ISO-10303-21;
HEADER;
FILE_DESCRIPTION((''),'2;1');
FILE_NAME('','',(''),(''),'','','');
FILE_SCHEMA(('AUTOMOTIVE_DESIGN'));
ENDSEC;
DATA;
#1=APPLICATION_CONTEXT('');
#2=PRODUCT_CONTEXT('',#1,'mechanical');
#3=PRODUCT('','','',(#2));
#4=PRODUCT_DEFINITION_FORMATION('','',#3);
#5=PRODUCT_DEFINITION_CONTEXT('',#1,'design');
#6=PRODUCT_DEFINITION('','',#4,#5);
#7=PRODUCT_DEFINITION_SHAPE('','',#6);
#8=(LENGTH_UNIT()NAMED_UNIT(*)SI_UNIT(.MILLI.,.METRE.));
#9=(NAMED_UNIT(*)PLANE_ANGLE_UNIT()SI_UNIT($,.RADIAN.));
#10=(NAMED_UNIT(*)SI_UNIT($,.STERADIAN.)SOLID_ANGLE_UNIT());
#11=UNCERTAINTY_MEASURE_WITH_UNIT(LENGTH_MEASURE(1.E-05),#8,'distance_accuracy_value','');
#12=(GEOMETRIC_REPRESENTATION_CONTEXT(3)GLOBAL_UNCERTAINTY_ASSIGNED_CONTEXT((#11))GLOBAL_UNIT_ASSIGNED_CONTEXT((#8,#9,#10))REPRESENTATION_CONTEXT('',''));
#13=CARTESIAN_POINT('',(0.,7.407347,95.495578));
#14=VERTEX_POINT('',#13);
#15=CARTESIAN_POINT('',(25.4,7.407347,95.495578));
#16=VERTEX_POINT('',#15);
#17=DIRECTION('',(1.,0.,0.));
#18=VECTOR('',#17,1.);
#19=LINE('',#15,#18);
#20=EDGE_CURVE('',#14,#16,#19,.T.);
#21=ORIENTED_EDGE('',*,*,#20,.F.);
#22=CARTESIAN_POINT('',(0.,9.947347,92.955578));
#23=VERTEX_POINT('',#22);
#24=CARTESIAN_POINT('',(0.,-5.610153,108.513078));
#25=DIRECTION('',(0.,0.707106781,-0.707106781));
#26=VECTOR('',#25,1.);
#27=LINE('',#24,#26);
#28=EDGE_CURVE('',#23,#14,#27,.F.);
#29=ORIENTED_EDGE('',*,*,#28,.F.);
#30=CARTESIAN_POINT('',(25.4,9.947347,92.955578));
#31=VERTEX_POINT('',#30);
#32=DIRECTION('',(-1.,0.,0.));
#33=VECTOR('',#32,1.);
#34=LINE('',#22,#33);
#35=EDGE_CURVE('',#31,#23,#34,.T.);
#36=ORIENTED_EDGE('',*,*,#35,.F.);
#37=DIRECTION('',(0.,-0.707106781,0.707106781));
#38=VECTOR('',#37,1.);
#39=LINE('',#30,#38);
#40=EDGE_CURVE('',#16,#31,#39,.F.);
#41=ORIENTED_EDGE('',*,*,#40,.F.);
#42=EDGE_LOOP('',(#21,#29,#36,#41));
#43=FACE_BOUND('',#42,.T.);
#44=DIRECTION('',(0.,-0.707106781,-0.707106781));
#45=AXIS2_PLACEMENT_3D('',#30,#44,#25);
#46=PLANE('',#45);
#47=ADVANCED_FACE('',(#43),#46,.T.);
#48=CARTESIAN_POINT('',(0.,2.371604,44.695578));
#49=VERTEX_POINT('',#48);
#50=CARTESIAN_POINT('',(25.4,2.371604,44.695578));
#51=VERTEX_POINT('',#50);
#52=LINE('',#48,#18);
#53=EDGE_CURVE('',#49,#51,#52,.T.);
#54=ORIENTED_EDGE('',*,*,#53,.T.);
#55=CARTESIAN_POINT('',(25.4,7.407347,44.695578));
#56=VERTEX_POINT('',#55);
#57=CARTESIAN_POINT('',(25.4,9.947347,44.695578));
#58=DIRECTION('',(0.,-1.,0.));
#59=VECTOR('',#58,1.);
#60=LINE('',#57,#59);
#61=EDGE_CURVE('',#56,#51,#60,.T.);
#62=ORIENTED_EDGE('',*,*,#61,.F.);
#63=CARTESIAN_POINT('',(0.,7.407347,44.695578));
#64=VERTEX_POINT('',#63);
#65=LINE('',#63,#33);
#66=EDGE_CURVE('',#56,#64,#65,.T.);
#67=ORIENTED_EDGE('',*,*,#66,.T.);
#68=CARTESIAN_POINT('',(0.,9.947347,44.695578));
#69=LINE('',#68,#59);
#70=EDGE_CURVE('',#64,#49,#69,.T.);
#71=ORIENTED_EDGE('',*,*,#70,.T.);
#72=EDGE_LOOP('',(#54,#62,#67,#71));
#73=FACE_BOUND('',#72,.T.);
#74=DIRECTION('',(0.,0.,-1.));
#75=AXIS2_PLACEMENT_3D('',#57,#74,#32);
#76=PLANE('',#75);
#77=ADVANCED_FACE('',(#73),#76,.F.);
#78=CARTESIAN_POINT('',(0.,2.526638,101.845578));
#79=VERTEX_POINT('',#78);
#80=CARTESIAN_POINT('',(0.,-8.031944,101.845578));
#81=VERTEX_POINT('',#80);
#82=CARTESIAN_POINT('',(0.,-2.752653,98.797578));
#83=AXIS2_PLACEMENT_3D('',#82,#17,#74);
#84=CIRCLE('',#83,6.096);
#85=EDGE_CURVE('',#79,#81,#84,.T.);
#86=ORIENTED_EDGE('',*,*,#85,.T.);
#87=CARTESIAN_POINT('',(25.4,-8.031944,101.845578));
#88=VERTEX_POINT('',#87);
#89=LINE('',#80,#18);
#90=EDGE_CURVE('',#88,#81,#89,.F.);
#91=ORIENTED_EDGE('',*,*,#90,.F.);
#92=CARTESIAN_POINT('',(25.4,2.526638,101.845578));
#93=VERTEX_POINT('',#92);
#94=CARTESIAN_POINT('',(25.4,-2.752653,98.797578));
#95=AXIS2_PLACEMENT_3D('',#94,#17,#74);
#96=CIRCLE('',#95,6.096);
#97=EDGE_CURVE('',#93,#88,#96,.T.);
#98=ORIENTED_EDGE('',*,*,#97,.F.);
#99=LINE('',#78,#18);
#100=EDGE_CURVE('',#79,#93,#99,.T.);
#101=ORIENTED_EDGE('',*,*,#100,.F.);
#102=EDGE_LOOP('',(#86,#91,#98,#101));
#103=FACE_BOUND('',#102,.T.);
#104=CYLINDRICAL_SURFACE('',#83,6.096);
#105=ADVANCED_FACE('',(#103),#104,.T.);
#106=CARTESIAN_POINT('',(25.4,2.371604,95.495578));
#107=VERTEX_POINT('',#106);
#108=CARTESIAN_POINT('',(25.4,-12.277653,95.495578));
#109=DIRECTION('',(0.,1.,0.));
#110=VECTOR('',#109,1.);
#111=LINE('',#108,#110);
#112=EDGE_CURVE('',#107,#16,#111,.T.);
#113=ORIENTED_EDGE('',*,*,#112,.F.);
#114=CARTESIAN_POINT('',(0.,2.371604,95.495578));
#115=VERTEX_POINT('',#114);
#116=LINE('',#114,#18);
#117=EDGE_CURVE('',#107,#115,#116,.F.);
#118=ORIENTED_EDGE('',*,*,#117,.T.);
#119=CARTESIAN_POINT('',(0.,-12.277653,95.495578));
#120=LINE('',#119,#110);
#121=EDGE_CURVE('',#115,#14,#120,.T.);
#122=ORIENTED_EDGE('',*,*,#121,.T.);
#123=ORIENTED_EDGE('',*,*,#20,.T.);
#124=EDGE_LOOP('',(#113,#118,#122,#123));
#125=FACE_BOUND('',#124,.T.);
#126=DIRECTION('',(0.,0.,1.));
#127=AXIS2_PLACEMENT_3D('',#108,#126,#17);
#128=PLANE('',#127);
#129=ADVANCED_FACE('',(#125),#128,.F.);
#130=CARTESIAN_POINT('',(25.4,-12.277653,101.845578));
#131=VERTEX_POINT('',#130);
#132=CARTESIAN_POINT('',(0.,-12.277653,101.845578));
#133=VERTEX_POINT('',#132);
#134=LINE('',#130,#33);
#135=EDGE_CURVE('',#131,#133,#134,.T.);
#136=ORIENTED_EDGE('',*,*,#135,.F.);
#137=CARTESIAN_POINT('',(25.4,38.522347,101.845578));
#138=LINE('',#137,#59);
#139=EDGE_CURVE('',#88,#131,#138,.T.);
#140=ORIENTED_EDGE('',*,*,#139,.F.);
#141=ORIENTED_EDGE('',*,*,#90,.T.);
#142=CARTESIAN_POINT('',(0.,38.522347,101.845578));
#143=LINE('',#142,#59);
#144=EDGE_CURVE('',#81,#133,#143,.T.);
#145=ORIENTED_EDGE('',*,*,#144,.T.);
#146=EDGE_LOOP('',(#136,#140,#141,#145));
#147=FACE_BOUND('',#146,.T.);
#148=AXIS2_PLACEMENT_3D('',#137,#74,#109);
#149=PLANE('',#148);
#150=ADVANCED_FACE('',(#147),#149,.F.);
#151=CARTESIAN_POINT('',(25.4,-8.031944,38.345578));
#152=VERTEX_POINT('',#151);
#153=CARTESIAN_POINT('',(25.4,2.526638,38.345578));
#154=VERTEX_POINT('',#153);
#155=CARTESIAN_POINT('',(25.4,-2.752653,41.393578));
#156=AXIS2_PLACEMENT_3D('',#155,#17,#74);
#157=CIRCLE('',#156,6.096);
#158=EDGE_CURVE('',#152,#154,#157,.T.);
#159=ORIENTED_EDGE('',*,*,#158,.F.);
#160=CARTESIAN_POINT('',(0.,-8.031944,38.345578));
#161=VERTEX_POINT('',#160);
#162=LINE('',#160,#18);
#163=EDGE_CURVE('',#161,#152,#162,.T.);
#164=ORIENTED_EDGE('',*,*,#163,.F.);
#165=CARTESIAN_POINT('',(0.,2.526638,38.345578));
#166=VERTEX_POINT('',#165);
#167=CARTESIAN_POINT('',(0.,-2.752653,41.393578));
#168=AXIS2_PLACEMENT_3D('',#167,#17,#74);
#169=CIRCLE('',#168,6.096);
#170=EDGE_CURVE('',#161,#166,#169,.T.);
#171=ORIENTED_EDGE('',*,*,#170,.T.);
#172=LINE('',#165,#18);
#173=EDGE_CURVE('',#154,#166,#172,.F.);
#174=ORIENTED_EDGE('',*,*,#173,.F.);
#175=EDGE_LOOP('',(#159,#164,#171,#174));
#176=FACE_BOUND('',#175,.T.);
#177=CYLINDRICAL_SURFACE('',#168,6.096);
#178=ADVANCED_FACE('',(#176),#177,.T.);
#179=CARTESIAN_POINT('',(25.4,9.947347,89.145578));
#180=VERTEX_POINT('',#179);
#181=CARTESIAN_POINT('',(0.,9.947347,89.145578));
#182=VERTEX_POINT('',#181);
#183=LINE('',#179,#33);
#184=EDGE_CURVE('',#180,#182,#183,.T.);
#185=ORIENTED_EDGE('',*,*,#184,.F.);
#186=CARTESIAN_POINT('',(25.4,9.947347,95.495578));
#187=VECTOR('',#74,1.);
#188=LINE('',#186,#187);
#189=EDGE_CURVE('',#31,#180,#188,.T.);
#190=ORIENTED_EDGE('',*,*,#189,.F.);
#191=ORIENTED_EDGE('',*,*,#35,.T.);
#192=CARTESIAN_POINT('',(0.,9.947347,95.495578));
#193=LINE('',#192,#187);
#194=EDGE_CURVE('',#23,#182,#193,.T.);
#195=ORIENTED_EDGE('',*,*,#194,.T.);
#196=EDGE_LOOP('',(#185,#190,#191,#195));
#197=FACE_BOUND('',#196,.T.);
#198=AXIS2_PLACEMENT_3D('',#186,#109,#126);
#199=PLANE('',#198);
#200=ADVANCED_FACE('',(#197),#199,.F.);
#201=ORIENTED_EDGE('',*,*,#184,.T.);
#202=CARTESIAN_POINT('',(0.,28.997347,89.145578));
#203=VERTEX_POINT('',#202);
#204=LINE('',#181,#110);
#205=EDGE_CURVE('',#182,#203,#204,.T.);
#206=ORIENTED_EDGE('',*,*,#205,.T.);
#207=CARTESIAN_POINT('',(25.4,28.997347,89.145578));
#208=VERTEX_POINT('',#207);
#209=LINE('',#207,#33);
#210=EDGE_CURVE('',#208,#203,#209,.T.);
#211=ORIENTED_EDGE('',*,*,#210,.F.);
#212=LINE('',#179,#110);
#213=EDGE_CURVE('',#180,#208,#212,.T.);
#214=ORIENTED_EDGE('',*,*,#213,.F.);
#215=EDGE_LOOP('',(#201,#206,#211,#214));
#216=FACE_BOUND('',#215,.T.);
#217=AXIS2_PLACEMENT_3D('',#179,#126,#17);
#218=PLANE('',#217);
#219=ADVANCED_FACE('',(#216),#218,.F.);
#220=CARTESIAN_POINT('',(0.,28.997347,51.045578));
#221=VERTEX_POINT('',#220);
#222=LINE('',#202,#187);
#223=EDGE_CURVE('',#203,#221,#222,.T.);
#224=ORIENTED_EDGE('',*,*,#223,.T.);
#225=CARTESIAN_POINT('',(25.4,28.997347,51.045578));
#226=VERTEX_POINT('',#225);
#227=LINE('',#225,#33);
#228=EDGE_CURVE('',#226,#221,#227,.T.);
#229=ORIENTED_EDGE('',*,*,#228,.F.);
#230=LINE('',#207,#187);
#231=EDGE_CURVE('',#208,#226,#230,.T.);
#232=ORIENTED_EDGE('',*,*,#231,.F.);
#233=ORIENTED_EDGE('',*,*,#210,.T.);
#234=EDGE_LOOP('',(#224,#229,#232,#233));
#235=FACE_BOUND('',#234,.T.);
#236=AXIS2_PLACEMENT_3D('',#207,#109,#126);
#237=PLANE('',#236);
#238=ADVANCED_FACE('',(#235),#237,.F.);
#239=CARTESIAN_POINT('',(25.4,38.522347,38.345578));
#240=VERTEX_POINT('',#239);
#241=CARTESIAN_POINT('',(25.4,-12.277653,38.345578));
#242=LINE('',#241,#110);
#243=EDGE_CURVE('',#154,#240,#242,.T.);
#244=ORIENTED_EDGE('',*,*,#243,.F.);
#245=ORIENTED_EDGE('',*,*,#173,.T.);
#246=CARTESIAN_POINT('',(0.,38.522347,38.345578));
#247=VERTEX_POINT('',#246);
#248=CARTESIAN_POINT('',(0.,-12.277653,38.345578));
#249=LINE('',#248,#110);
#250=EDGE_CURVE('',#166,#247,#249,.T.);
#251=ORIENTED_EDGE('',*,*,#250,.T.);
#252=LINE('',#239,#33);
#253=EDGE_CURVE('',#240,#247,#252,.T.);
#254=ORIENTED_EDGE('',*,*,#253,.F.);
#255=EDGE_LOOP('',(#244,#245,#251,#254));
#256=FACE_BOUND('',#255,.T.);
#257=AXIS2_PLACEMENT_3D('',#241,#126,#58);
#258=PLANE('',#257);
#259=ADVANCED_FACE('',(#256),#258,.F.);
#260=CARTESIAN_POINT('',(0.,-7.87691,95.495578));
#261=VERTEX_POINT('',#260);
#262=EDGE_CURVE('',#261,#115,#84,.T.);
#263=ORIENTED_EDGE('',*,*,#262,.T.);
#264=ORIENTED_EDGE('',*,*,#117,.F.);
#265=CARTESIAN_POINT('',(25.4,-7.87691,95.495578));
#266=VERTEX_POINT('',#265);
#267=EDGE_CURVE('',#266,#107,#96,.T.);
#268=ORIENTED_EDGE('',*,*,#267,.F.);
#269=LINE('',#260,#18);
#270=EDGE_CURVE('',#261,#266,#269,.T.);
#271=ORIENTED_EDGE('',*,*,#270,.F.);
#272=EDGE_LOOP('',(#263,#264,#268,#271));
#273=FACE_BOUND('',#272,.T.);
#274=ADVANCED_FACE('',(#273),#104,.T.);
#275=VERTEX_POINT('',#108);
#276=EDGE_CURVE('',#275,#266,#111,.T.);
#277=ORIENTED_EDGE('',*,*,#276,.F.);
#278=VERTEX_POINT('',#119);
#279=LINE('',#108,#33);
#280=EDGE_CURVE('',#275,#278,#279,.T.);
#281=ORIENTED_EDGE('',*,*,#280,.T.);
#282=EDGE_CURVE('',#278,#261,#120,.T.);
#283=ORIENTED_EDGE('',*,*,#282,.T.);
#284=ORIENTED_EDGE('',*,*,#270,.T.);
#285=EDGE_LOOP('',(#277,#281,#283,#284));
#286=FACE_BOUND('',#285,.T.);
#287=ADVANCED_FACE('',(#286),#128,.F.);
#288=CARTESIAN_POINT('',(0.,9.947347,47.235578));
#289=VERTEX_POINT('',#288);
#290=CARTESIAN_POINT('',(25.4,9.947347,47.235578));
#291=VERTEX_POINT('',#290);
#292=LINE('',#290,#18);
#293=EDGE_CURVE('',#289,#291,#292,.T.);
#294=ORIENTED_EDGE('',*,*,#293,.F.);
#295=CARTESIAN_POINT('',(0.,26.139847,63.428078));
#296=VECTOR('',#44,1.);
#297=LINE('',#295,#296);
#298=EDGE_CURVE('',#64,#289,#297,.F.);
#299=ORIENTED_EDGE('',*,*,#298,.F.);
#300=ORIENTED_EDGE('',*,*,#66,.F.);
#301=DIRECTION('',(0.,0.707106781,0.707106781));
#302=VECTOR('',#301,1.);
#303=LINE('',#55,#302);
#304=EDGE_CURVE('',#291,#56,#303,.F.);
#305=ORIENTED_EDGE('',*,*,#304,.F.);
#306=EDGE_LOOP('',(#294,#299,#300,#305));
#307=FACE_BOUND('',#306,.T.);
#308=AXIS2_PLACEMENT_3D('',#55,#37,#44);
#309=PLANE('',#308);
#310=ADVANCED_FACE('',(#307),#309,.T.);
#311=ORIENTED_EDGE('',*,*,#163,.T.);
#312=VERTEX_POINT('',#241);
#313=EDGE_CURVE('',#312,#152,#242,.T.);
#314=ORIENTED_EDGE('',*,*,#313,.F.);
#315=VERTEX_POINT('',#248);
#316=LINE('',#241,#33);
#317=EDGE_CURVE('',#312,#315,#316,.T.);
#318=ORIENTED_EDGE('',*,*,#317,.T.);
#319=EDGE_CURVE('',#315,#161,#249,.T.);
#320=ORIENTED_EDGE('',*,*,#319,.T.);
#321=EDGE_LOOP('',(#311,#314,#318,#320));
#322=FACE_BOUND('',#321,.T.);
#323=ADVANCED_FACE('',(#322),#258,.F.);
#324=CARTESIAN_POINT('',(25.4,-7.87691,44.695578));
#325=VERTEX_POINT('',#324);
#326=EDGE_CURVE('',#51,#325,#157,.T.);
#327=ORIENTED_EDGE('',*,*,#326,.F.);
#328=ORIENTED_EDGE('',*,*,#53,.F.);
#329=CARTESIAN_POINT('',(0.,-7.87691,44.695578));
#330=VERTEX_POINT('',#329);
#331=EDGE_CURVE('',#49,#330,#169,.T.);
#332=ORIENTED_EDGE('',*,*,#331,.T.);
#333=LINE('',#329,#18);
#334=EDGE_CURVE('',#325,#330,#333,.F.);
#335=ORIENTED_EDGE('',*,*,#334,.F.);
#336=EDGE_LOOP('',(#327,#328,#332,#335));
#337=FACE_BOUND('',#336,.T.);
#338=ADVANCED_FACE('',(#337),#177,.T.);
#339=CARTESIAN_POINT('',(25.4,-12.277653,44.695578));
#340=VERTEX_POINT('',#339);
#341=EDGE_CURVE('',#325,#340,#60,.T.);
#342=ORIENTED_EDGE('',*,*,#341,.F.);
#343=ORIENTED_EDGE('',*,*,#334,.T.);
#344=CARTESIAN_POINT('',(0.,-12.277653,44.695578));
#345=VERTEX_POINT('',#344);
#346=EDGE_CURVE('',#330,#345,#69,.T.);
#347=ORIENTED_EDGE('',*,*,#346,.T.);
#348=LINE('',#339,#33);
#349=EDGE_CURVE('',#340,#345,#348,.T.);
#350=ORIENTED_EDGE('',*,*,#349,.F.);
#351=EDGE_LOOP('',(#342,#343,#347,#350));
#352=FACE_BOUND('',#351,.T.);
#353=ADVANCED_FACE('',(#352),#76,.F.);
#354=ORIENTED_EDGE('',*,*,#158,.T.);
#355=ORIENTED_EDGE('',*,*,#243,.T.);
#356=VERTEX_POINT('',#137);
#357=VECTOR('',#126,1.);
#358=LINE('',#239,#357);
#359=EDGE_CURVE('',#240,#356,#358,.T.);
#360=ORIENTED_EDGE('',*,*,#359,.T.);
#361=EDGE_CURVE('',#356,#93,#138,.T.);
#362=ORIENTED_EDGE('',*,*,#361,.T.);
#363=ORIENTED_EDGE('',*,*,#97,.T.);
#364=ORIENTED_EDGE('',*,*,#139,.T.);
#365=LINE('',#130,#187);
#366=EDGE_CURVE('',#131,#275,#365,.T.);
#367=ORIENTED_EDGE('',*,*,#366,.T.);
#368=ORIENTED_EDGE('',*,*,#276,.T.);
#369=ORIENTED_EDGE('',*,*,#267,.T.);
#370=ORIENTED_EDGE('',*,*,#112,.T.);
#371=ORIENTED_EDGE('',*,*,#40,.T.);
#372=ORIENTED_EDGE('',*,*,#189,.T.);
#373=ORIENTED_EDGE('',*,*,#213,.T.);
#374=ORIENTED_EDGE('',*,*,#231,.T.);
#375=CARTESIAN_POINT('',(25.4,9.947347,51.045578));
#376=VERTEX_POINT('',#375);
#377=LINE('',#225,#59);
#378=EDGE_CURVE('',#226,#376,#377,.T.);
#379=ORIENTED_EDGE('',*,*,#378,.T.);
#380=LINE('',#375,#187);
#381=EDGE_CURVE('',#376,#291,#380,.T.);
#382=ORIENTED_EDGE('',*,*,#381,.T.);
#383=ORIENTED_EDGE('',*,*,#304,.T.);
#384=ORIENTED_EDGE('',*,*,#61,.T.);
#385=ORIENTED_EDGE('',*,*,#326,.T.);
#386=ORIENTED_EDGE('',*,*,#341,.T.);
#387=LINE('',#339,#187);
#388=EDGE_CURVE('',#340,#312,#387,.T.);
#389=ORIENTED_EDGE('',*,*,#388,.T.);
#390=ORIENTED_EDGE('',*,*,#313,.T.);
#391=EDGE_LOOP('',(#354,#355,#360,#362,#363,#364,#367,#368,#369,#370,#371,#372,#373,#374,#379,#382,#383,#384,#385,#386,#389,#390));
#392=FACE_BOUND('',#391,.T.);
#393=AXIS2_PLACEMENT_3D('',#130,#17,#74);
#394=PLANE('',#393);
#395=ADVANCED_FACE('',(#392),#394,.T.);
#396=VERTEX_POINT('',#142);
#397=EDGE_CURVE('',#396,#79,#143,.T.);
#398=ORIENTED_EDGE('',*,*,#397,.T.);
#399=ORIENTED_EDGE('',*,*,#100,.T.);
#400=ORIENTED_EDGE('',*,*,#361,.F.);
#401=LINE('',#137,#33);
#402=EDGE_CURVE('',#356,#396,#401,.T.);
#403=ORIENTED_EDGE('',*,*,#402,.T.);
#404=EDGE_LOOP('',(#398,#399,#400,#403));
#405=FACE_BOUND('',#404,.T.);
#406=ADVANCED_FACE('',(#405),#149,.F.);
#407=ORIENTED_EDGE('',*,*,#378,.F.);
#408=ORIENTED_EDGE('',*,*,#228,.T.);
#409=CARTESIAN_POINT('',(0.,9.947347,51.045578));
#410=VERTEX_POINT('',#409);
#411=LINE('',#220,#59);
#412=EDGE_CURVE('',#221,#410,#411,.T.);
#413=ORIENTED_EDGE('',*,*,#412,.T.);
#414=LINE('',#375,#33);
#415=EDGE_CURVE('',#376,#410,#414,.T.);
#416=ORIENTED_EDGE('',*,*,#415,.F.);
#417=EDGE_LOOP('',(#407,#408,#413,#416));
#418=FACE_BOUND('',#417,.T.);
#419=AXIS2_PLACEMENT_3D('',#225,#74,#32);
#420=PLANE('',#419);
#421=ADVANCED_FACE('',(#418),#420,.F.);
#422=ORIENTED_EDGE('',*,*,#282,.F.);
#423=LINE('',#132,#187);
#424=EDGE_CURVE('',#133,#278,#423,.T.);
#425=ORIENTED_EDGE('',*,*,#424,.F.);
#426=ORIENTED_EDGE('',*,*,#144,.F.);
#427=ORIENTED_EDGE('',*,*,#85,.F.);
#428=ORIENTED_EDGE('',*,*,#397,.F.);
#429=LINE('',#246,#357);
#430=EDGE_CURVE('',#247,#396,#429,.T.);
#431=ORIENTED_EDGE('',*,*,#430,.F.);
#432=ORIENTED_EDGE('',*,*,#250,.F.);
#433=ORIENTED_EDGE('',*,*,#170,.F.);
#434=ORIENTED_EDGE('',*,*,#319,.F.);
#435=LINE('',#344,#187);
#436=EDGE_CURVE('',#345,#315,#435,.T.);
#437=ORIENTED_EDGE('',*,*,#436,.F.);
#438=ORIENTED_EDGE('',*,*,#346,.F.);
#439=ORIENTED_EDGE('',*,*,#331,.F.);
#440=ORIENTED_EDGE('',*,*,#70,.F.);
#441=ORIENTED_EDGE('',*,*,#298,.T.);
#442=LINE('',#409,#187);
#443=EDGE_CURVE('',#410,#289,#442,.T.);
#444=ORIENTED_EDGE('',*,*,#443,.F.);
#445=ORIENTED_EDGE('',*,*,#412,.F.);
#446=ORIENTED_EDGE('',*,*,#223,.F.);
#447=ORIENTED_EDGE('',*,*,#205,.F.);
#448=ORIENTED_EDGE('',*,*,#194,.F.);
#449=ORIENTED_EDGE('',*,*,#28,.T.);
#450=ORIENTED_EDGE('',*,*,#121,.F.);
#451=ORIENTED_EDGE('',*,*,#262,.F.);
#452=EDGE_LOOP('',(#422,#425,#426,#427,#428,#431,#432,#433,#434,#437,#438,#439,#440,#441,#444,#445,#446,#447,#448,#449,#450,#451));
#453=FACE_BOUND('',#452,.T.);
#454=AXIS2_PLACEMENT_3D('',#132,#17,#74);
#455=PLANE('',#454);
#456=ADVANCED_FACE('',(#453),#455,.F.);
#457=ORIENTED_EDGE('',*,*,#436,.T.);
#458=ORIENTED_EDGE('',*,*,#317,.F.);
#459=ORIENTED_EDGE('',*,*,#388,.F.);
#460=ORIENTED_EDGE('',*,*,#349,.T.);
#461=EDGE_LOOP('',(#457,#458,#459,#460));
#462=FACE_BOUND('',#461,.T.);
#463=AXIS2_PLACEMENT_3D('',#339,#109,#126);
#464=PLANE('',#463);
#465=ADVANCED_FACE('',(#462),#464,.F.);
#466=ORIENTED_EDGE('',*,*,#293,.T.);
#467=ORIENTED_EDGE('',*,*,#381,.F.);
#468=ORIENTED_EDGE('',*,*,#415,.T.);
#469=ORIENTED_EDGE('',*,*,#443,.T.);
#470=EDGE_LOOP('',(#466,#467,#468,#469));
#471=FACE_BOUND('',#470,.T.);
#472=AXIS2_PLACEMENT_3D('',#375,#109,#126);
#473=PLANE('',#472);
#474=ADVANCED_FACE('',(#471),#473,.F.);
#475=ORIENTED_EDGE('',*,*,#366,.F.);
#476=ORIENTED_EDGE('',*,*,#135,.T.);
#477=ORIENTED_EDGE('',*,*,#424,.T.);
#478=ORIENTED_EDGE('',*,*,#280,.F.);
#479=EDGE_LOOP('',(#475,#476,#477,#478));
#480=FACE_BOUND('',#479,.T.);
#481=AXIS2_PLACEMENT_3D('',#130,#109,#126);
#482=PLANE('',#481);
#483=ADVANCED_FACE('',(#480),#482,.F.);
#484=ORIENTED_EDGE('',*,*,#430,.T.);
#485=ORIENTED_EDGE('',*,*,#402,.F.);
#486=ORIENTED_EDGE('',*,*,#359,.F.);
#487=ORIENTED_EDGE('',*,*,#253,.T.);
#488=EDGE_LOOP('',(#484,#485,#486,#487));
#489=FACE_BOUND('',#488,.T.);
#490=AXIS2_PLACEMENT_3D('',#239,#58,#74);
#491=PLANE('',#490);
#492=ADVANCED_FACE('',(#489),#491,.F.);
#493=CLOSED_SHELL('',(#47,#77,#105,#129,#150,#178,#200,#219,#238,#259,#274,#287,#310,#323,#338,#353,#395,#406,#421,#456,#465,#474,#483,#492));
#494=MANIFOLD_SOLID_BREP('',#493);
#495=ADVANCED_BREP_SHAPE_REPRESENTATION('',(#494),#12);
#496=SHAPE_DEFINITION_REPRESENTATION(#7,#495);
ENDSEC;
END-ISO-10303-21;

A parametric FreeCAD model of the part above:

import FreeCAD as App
import Part
import Sketcher
Q = App.Units.Quantity


def edges_at(feature, points):
    """Names of the edges that pass closest to the given points."""
    edges = feature.Shape.Edges
    near = lambda p: min(range(len(edges)), key=lambda i: edges[i].distToShape(Part.Vertex(*p))[0])
    return sorted({f"Edge{near(p) + 1}" for p in points})


def add_polygon(sketch, points):
    """Adds a closed chain of lines whose ends are joined by coincident constraints."""
    first, n = sketch.GeometryCount, len(points)
    for a, b in zip(points, points[1:] + points[:1]):
        sketch.addGeometry(Part.LineSegment(App.Vector(*a, 0), App.Vector(*b, 0)), False)
    for i in range(n):
        sketch.addConstraint(Sketcher.Constraint("Coincident", first + i, 2, first + (i + 1) % n, 1))

doc = App.newDocument("Part")
body = doc.addObject("PartDesign::Body", "Body")

sketch1 = body.newObject("Sketcher::SketchObject", "Sketch")
sketch1.AttachmentSupport = (doc.getObject("YZ_Plane"), [""])
sketch1.MapMode = "FlatFace"
add_polygon(sketch1, [(-12, 102), (-12, 95), (10, 95), (10, 89), (29, 89), (29, 51), (10, 51), (10, 45), (-12, 45), (-12, 38), (39, 38), (39, 102)])
sketch1.addConstraint([
    Sketcher.Constraint("Vertical", 0),
    Sketcher.Constraint("Horizontal", 1),
    Sketcher.Constraint("Vertical", 2),
    Sketcher.Constraint("Horizontal", 3),
    Sketcher.Constraint("Vertical", 4),
    Sketcher.Constraint("Horizontal", 5),
    Sketcher.Constraint("Vertical", 6),
    Sketcher.Constraint("Horizontal", 7),
    Sketcher.Constraint("Vertical", 8),
    Sketcher.Constraint("Horizontal", 9),
    Sketcher.Constraint("Vertical", 10),
    Sketcher.Constraint("Horizontal", 11),
    Sketcher.Constraint("Vertical", 2, 2, 5, 2),
    Sketcher.Constraint("Vertical", 0, 2, 7, 2),
    Sketcher.Constraint("Equal", 0, 2),
    Sketcher.Constraint("Equal", 2, 6),
    Sketcher.Constraint("Equal", 6, 8),
    Sketcher.Constraint("DistanceX", 9, 1, 9, 2, Q("2 in")),
    Sketcher.Constraint("DistanceY", 4, 2, 4, 1, Q("1.5 in")),
    Sketcher.Constraint("DistanceY", 10, 1, 10, 2, Q("2.5 in")),
    Sketcher.Constraint("DistanceX", 3, 1, 3, 2, Q("0.75 in")),
    Sketcher.Constraint("DistanceX", 1, 1, 1, 2, Q("0.875 in")),
    Sketcher.Constraint("DistanceX", 0, 2, -1, 1, 12.277653),
    Sketcher.Constraint("DistanceY", -1, 1, 0, 2, 95.495578),
])
pad1 = body.newObject("PartDesign::Pad", "Pad")
pad1.Profile = sketch1
pad1.Length = Q("1 in")

sketch2 = body.newObject("Sketcher::SketchObject", "Sketch001")
sketch2.AttachmentSupport = (doc.getObject("YZ_Plane"), [""])
sketch2.MapMode = "FlatFace"
sketch2.AttachmentOffset = App.Placement(App.Vector(0, 0, 1 * 25.4), App.Rotation())
sketch2.addGeometry([
    Part.Circle(App.Vector(-3, 99, 0), App.Vector(0, 0, 1), 6),
    Part.Circle(App.Vector(-3, 41, 0), App.Vector(0, 0, 1), 6),
], False)
sketch2.addConstraint([
    Sketcher.Constraint("Equal", 0, 1),
    Sketcher.Constraint("Vertical", 0, 3, 1, 3),
    Sketcher.Constraint("Diameter", 0, Q("0.48 in")),
    Sketcher.Constraint("DistanceY", 1, 3, 0, 3, Q("2.26 in")),
    Sketcher.Constraint("DistanceX", 0, 3, -1, 1, 2.752653),
    Sketcher.Constraint("DistanceY", -1, 1, 0, 3, 98.797578),
])
pad2 = body.newObject("PartDesign::Pad", "Pad001")
pad2.Profile = sketch2
pad2.Length = Q("1 in")
pad2.Reversed = True
doc.recompute()

chamfer = body.newObject("PartDesign::Chamfer", "Chamfer")
chamfer.Base = (pad2, edges_at(pad2, [(12.7, 9.947, 44.696), (12.7, 9.947, 95.496)]))
chamfer.Size = Q("0.1 in")

doc.recompute()
